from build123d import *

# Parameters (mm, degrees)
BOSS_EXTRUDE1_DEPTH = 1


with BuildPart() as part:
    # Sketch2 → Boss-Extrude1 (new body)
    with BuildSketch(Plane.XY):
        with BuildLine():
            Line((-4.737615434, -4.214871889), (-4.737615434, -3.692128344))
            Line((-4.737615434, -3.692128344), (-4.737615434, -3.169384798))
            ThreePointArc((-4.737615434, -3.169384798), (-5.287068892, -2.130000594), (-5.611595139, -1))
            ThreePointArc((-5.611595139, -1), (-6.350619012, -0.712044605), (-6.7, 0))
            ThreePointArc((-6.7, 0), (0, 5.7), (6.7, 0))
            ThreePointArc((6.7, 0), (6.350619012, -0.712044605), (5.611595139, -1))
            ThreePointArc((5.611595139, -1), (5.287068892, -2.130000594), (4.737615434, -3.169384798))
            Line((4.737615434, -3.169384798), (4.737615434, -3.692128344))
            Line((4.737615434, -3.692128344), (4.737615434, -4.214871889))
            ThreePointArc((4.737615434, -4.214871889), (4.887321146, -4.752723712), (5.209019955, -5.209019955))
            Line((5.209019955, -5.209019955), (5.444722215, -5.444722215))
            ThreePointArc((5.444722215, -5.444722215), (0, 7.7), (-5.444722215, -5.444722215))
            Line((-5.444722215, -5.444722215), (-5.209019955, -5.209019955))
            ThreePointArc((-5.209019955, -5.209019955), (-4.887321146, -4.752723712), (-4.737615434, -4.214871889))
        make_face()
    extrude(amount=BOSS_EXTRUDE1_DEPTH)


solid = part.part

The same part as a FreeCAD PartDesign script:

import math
import FreeCAD as App
import Part
import Sketcher

doc = App.newDocument("Part")
body = doc.addObject("PartDesign::Body", "Body")

# Sketch on XY plane
sketch1 = body.newObject("Sketcher::SketchObject", "Sketch")
sketch1.AttachmentSupport = (doc.getObject("XY_Plane"), [""])
sketch1.MapMode = "FlatFace"
sketch1.addGeometry(Part.LineSegment(App.Vector(-4.74, -4.21, 0), App.Vector(-4.74, -3.17, 0)), False)
sketch1.addGeometry(Part.ArcOfCircle(Part.Circle(App.Vector(0, 0, 0), App.Vector(0, 0, 1), 5.7), math.radians(-170), math.radians(-146)), False)
sketch1.addGeometry(Part.ArcOfCircle(Part.Circle(App.Vector(-5.61, 0.09, 0), App.Vector(0, 0, 1), 1.09), math.radians(-175), math.radians(-90)), False)
sketch1.addGeometry(Part.ArcOfCircle(Part.Circle(App.Vector(0, -1.09, 0), App.Vector(0, 0, 1), 6.79), math.radians(9), math.radians(171)), False)
sketch1.addGeometry(Part.ArcOfCircle(Part.Circle(App.Vector(5.61, 0.09, 0), App.Vector(0, 0, 1), 1.09), math.radians(-90), math.radians(-5)), False)
sketch1.addGeometry(Part.ArcOfCircle(Part.Circle(App.Vector(0, 0, 0), App.Vector(0, 0, 1), 5.7), math.radians(-34), math.radians(-10)), False)
sketch1.addGeometry(Part.LineSegment(App.Vector(4.74, -3.17, 0), App.Vector(4.74, -4.21, 0)), False)
sketch1.addGeometry(Part.ArcOfCircle(Part.Circle(App.Vector(6.37, -4.05, 0), App.Vector(0, 0, 1), 1.64), math.radians(-174), math.radians(-135)), False)
sketch1.addGeometry(Part.LineSegment(App.Vector(5.21, -5.21, 0), App.Vector(5.44, -5.44, 0)), False)
sketch1.addGeometry(Part.ArcOfCircle(Part.Circle(App.Vector(0, 0, 0), App.Vector(0, 0, 1), 7.7), math.radians(-45), math.radians(225)), False)
sketch1.addGeometry(Part.LineSegment(App.Vector(-5.44, -5.44, 0), App.Vector(-5.21, -5.21, 0)), False)
sketch1.addGeometry(Part.ArcOfCircle(Part.Circle(App.Vector(-6.37, -4.05, 0), App.Vector(0, 0, 1), 1.64), math.radians(-45), math.radians(-6)), False)
sketch1.addConstraint(Sketcher.Constraint("Coincident", 0, 2, 1, 2))
sketch1.addConstraint(Sketcher.Constraint("Coincident", 1, 1, 2, 2))
sketch1.addConstraint(Sketcher.Constraint("Coincident", 2, 1, 3, 2))
sketch1.addConstraint(Sketcher.Constraint("Coincident", 3, 1, 4, 2))
sketch1.addConstraint(Sketcher.Constraint("Coincident", 4, 1, 5, 2))
sketch1.addConstraint(Sketcher.Constraint("Coincident", 5, 1, 6, 1))
sketch1.addConstraint(Sketcher.Constraint("Coincident", 6, 2, 7, 1))
sketch1.addConstraint(Sketcher.Constraint("Tangent", 7, 2, 8, 1))
sketch1.addConstraint(Sketcher.Constraint("Coincident", 8, 2, 9, 1))
sketch1.addConstraint(Sketcher.Constraint("Coincident", 9, 2, 10, 1))
sketch1.addConstraint(Sketcher.Constraint("Tangent", 10, 2, 11, 1))
sketch1.addConstraint(Sketcher.Constraint("Coincident", 11, 2, 0, 1))
sketch1.addConstraint(Sketcher.Constraint("Vertical", 0))
sketch1.addConstraint(Sketcher.Constraint("Vertical", 6))
sketch1.addConstraint(Sketcher.Constraint("Coincident", 1, 3, -1, 1))
sketch1.addConstraint(Sketcher.Constraint("Coincident", 5, 3, -1, 1))
sketch1.addConstraint(Sketcher.Constraint("Coincident", 9, 3, -1, 1))
sketch1.addConstraint(Sketcher.Constraint("Equal", 2, 4))
sketch1.addConstraint(Sketcher.Constraint("Equal", 1, 5))
sketch1.addConstraint(Sketcher.Constraint("Equal", 7, 11))
sketch1.addConstraint(Sketcher.Constraint("Symmetric", 2, 1, 3, 1, -1, 1))
sketch1.addConstraint(Sketcher.Constraint("Symmetric", 2, 3, 4, 3, -2))
sketch1.addConstraint(Sketcher.Constraint("Symmetric", 7, 3, 11, 3, -2))
sketch1.addConstraint(Sketcher.Constraint("Perpendicular", 8, 10))
sketch1.addConstraint(Sketcher.Constraint("Horizontal", 0, 2, 5, 1))
sketch1.addConstraint(Sketcher.Constraint("Horizontal", 8, 2, 9, 2))
sketch1.addConstraint(Sketcher.Constraint("Vertical", 2, 3, 1, 1))
sketch1.addConstraint(Sketcher.Constraint("Radius", 1, 5.7))
sketch1.addConstraint(Sketcher.Constraint("Radius", 9, 7.7))
sketch1.addConstraint(Sketcher.Constraint("DistanceY", 1, 1, -1, 1, 1.0))
sketch1.addConstraint(Sketcher.Constraint("DistanceX", 2, 1, -1, 1, 6.7))
sketch1.addConstraint(Sketcher.Constraint("Radius", 3, 6.787719))
sketch1.addConstraint(Sketcher.Constraint("Radius", 7, 1.637495))
sketch1.addConstraint(Sketcher.Constraint("DistanceX", 2, 3, 7, 3, 11.978499))
sketch1.addConstraint(Sketcher.Constraint("DistanceY", 0, 1, 0, 2, 1.045487))
sketch1.addConstraint(Sketcher.Constraint("DistanceY", 6, 2, -1, 1, 4.214872))
pad1 = body.newObject("PartDesign::Pad", "Pad")
pad1.Profile = sketch1
pad1.Length = 1

doc.recompute()
